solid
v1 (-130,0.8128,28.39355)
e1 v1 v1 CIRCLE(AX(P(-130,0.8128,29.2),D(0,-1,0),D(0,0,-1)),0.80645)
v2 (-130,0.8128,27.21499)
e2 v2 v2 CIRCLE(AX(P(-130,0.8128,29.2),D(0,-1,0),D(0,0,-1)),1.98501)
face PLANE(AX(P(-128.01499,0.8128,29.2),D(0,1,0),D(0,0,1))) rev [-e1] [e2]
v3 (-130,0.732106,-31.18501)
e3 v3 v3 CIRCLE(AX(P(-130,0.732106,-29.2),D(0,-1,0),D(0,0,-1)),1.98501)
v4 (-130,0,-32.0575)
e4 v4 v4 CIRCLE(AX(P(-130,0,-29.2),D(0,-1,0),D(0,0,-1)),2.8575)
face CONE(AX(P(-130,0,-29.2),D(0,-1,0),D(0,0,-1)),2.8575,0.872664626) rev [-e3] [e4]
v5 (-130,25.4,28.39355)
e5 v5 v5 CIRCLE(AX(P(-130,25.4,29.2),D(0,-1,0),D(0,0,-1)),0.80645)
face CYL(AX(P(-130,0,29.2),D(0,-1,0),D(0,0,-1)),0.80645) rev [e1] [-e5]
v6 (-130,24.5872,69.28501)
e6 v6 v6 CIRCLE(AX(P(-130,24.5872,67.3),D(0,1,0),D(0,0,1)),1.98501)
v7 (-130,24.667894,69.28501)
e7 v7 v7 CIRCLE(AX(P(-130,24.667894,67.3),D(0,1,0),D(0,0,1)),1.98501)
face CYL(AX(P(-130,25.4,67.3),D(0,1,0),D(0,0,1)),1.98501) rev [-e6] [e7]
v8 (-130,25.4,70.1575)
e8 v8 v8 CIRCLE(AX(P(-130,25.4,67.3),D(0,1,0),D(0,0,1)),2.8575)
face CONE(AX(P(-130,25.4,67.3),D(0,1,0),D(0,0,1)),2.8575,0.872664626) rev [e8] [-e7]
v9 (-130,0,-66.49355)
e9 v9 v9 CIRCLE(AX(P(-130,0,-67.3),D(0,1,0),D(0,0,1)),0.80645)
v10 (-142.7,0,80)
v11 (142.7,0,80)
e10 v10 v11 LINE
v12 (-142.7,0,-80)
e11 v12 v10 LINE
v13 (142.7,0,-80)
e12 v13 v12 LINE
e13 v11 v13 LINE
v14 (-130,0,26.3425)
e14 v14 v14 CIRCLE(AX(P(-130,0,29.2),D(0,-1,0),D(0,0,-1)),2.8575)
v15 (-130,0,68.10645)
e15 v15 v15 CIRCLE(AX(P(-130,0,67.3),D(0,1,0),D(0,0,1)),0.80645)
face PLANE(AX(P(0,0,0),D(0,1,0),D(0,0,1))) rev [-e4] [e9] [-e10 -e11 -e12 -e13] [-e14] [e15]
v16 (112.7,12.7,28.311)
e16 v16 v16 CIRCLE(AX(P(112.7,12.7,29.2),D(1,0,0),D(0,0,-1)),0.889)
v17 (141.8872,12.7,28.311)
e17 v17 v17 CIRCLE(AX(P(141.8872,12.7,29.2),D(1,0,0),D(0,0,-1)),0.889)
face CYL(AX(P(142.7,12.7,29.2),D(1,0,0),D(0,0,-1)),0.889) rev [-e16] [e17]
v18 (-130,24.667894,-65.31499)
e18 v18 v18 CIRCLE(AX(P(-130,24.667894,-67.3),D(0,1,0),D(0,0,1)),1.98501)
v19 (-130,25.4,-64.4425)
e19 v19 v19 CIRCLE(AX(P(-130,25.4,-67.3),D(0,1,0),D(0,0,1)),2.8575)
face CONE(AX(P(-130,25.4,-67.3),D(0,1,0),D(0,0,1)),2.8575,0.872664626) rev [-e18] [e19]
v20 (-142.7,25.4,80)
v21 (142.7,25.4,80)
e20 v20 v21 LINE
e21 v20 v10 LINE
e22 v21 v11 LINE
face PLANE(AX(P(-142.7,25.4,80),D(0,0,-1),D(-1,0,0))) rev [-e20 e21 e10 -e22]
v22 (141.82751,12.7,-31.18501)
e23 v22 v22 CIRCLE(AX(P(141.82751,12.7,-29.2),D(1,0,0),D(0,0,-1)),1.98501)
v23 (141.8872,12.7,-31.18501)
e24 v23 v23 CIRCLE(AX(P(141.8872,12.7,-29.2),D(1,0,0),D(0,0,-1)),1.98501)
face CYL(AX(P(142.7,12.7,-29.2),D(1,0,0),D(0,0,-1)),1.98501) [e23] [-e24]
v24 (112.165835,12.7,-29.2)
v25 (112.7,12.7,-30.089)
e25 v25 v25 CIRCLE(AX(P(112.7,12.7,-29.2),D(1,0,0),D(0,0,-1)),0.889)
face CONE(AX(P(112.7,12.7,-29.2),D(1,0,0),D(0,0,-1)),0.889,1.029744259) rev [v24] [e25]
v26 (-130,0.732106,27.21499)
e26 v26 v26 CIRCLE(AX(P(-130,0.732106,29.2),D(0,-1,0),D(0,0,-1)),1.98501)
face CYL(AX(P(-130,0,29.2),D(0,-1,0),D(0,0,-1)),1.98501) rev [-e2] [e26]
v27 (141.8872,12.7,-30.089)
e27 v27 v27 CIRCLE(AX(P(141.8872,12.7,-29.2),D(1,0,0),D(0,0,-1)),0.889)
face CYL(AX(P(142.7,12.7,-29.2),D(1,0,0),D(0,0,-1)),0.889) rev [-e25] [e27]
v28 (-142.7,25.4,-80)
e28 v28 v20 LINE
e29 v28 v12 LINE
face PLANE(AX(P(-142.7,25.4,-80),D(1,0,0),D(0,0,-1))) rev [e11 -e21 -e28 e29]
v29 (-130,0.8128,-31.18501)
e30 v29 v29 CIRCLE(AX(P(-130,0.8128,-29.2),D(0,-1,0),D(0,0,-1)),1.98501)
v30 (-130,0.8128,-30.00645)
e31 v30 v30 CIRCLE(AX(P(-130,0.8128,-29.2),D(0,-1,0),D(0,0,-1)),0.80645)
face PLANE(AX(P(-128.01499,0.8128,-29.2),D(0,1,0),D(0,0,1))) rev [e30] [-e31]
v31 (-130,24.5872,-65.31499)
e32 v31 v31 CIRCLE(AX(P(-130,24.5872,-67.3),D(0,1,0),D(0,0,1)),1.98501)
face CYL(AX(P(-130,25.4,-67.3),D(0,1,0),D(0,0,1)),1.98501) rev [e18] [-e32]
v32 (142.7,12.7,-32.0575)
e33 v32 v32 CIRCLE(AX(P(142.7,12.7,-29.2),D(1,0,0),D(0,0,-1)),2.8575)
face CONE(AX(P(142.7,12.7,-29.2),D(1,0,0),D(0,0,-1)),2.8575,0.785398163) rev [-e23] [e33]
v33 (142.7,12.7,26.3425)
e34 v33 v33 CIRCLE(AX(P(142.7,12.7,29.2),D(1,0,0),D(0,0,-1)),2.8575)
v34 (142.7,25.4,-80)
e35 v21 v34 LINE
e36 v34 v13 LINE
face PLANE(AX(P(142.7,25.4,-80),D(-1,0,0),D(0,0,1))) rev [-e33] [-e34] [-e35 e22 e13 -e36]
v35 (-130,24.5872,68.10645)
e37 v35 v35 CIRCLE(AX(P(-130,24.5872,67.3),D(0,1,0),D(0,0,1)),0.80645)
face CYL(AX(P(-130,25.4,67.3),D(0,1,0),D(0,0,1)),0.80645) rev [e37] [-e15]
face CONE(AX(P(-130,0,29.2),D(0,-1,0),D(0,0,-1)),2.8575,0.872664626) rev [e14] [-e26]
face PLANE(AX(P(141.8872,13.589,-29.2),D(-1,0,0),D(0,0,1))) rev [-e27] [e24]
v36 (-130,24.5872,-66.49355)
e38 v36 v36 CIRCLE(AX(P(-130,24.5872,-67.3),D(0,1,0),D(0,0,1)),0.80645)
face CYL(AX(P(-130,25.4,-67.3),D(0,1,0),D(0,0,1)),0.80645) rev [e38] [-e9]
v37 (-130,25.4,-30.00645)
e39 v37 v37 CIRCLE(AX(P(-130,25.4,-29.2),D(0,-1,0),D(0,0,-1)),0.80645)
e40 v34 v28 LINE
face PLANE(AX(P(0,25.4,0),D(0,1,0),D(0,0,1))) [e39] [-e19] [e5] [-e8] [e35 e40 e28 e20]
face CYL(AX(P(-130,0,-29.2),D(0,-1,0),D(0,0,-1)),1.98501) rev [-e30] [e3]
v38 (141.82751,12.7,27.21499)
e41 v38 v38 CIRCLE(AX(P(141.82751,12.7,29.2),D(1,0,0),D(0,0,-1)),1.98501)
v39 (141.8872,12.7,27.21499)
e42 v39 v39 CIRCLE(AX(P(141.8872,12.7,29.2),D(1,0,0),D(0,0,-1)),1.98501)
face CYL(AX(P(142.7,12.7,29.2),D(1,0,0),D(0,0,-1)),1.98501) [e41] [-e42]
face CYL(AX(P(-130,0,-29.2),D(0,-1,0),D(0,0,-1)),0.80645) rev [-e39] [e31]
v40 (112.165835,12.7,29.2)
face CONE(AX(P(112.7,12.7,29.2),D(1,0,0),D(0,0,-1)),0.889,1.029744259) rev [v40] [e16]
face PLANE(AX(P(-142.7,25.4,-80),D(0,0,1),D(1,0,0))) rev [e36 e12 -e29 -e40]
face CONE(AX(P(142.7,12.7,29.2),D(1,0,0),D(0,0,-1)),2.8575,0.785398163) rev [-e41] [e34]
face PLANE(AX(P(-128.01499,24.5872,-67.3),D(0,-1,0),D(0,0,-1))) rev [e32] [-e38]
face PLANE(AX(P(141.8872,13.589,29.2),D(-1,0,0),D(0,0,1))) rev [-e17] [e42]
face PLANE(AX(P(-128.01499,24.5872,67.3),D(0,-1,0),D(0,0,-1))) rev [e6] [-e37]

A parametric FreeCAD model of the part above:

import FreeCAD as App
import Part
import Sketcher
Q = App.Units.Quantity

doc = App.newDocument("Part")
body = doc.addObject("PartDesign::Body", "Body")

# Sketch on XZ plane
sketch1 = body.newObject("Sketcher::SketchObject", "Sketch")
sketch1.AttachmentSupport = (doc.getObject("XZ_Plane"), [""])
sketch1.MapMode = "FlatFace"
sketch1.addGeometry([
    Part.LineSegment(App.Vector(-143, -80, 0), App.Vector(-143, 80, 0)),
    Part.LineSegment(App.Vector(-143, 80, 0), App.Vector(143, 80, 0)),
    Part.LineSegment(App.Vector(143, 80, 0), App.Vector(143, -80, 0)),
    Part.LineSegment(App.Vector(143, -80, 0), App.Vector(-143, -80, 0)),
], False)
sketch1.addConstraint([
    Sketcher.Constraint("Coincident", 0, 2, 1, 1),
    Sketcher.Constraint("Coincident", 1, 2, 2, 1),
    Sketcher.Constraint("Coincident", 2, 2, 3, 1),
    Sketcher.Constraint("Coincident", 3, 2, 0, 1),
    Sketcher.Constraint("Vertical", 0),
    Sketcher.Constraint("Horizontal", 1),
    Sketcher.Constraint("Vertical", 2),
    Sketcher.Constraint("Horizontal", 3),
    Sketcher.Constraint("Symmetric", 0, 2, 2, 2, -1, 1),
    Sketcher.Constraint("DistanceY", 0, 1, 0, 2, 160.0),
    Sketcher.Constraint("DistanceX", 1, 1, 1, 2, 285.4),
])
pad1 = body.newObject("PartDesign::Pad", "Pad")
pad1.Profile = sketch1
pad1.Length = 25.4
pad1.Reversed = True

# Sketch on XZ plane
sketch2 = body.newObject("Sketcher::SketchObject", "Sketch001")
sketch2.AttachmentSupport = (doc.getObject("XZ_Plane"), [""])
sketch2.MapMode = "FlatFace"
sketch2.AttachmentOffset = App.Placement(App.Vector(0, 0, -12.7), App.Rotation())
sketch2.addGeometry([
    Part.LineSegment(App.Vector(112.17, 29.2, 0), App.Vector(142.7, 29.2, 0)),  # 0
    Part.LineSegment(App.Vector(142.7, 29.2, 0), App.Vector(142.7, 26.34, 0)),  # 1
    Part.LineSegment(App.Vector(142.7, 26.34, 0), App.Vector(141.83, 27.21, 0)),  # 2
    Part.LineSegment(App.Vector(141.83, 27.21, 0), App.Vector(141.89, 27.21, 0)),  # 3
    Part.LineSegment(App.Vector(141.89, 27.21, 0), App.Vector(141.89, 28.31, 0)),  # 4
    Part.LineSegment(App.Vector(141.89, 28.31, 0), App.Vector(112.7, 28.31, 0)),  # 5
    Part.LineSegment(App.Vector(112.7, 28.31, 0), App.Vector(112.17, 29.2, 0)),  # 6
], False)
sketch2.addGeometry(Part.LineSegment(App.Vector(142.7, 29.2, 0), App.Vector(112.17, 29.2, 0)), True)  # axis
sketch2.addConstraint([
    Sketcher.Constraint("Coincident", 0, 2, 1, 1),
    Sketcher.Constraint("Coincident", 1, 2, 2, 1),
    Sketcher.Constraint("Coincident", 2, 2, 3, 1),
    Sketcher.Constraint("Coincident", 3, 2, 4, 1),
    Sketcher.Constraint("Coincident", 4, 2, 5, 1),
    Sketcher.Constraint("Coincident", 5, 2, 6, 1),
    Sketcher.Constraint("Coincident", 6, 2, 0, 1),
    Sketcher.Constraint("Horizontal", 0),
    Sketcher.Constraint("Vertical", 1),
    Sketcher.Constraint("Horizontal", 3),
    Sketcher.Constraint("Vertical", 4),
    Sketcher.Constraint("Horizontal", 5),
    Sketcher.Constraint("Horizontal", 7),
    Sketcher.Constraint("Coincident", 7, 1, 0, 2),
    Sketcher.Constraint("Equal", 0, 7),
    Sketcher.Constraint("Angle", 2, Q("135 deg")),
    Sketcher.Constraint("Angle", 6, Q("121 deg")),
    Sketcher.Constraint("DistanceX", 5, 2, 0, 2, 30.0),
    Sketcher.Constraint("DistanceX", -1, 1, 0, 2, 142.7),
    Sketcher.Constraint("DistanceY", -1, 1, 0, 2, 29.2),
    Sketcher.Constraint("DistanceX", 5, 2, 5, 1, 29.1872),
    Sketcher.Constraint("DistanceY", 1, 2, 1, 1, 2.8575),
    Sketcher.Constraint("DistanceY", -1, 1, 4, 2, 28.311),
    Sketcher.Constraint("DistanceX", 3, 1, 3, 2, 0.05969),
])
groove = body.newObject("PartDesign::Groove", "Groove")
groove.Profile = sketch2
groove.ReferenceAxis = (sketch2, ["Axis0"])
groove.Angle = 360
doc.recompute()

linearpattern = body.newObject("PartDesign::LinearPattern", "LinearPattern")
linearpattern.Originals = [groove]
linearpattern.Direction = (doc.getObject("Z_Axis"), [""])
linearpattern.Mode = "offset"
linearpattern.Offset = 58.4
linearpattern.Occurrences = 2
linearpattern.Reversed = True
body.Tip = linearpattern

# Sketch on YZ plane
sketch3 = body.newObject("Sketcher::SketchObject", "Sketch002")
sketch3.AttachmentSupport = (doc.getObject("YZ_Plane"), [""])
sketch3.MapMode = "FlatFace"
sketch3.AttachmentOffset = App.Placement(App.Vector(0, 0, -130), App.Rotation())
sketch3.addGeometry([
    Part.LineSegment(App.Vector(0, 67.3, 0), App.Vector(25.4, 67.3, 0)),  # 0
    Part.LineSegment(App.Vector(25.4, 67.3, 0), App.Vector(25.4, 70.16, 0)),  # 1
    Part.LineSegment(App.Vector(25.4, 70.16, 0), App.Vector(24.67, 69.29, 0)),  # 2
    Part.LineSegment(App.Vector(24.67, 69.29, 0), App.Vector(24.59, 69.29, 0)),  # 3
    Part.LineSegment(App.Vector(24.59, 69.29, 0), App.Vector(24.59, 68.11, 0)),  # 4
    Part.LineSegment(App.Vector(24.59, 68.11, 0), App.Vector(0, 68.11, 0)),  # 5
    Part.LineSegment(App.Vector(0, 68.11, 0), App.Vector(0, 67.3, 0)),  # 6
], False)
sketch3.addGeometry(Part.LineSegment(App.Vector(25.4, 67.3, 0), App.Vector(0, 67.3, 0)), True)  # axis
sketch3.addConstraint([
    Sketcher.Constraint("Coincident", 0, 2, 1, 1),
    Sketcher.Constraint("Coincident", 1, 2, 2, 1),
    Sketcher.Constraint("Coincident", 2, 2, 3, 1),
    Sketcher.Constraint("Coincident", 3, 2, 4, 1),
    Sketcher.Constraint("Coincident", 4, 2, 5, 1),
    Sketcher.Constraint("Coincident", 5, 2, 6, 1),
    Sketcher.Constraint("Coincident", 6, 2, 0, 1),
    Sketcher.Constraint("Horizontal", 0),
    Sketcher.Constraint("Vertical", 1),
    Sketcher.Constraint("Horizontal", 3),
    Sketcher.Constraint("Vertical", 4),
    Sketcher.Constraint("Horizontal", 5),
    Sketcher.Constraint("Vertical", 6),
    Sketcher.Constraint("Horizontal", 7),
    Sketcher.Constraint("Coincident", 7, 1, 0, 2),
    Sketcher.Constraint("PointOnObject", 5, 2, -2),
    Sketcher.Constraint("PointOnObject", 7, 2, -2),
    Sketcher.Constraint("Angle", 2, Q("-130 deg")),
    Sketcher.Constraint("DistanceX", 0, 1, 0, 2, 25.4),
    Sketcher.Constraint("DistanceY", -1, 1, 0, 2, 67.3),
    Sketcher.Constraint("DistanceX", 5, 2, 5, 1, 24.5872),
    Sketcher.Constraint("DistanceY", 1, 1, 1, 2, 2.8575),
    Sketcher.Constraint("DistanceY", 4, 2, 4, 1, 1.17856),
    Sketcher.Constraint("DistanceY", 6, 2, 6, 1, 0.80645),
])
groove2 = body.newObject("PartDesign::Groove", "Groove001")
groove2.Profile = sketch3
groove2.ReferenceAxis = (sketch3, ["Axis0"])
groove2.Angle = 360
doc.recompute()

linearpattern2 = body.newObject("PartDesign::LinearPattern", "LinearPattern001")
linearpattern2.Originals = [groove2]
linearpattern2.Direction = (doc.getObject("Z_Axis"), [""])
linearpattern2.Mode = "offset"
linearpattern2.Offset = 134.6
linearpattern2.Occurrences = 2
linearpattern2.Reversed = True
body.Tip = linearpattern2

# Sketch on YZ plane
sketch4 = body.newObject("Sketcher::SketchObject", "Sketch003")
sketch4.AttachmentSupport = (doc.getObject("YZ_Plane"), [""])
sketch4.MapMode = "FlatFace"
sketch4.AttachmentOffset = App.Placement(App.Vector(0, 0, -130), App.Rotation())
sketch4.addGeometry([
    Part.LineSegment(App.Vector(25.4, -29.2, 0), App.Vector(0, -29.2, 0)),  # 0
    Part.LineSegment(App.Vector(0, -29.2, 0), App.Vector(0, -32.06, 0)),  # 1
    Part.LineSegment(App.Vector(0, -32.06, 0), App.Vector(0.73, -31.19, 0)),  # 2
    Part.LineSegment(App.Vector(0.73, -31.19, 0), App.Vector(0.81, -31.19, 0)),  # 3
    Part.LineSegment(App.Vector(0.81, -31.19, 0), App.Vector(0.81, -30.01, 0)),  # 4
    Part.LineSegment(App.Vector(0.81, -30.01, 0), App.Vector(25.4, -30.01, 0)),  # 5
    Part.LineSegment(App.Vector(25.4, -30.01, 0), App.Vector(25.4, -29.2, 0)),  # 6
], False)
sketch4.addGeometry(Part.LineSegment(App.Vector(0, -29.2, 0), App.Vector(25.4, -29.2, 0)), True)  # axis
sketch4.addConstraint([
    Sketcher.Constraint("Coincident", 0, 2, 1, 1),
    Sketcher.Constraint("Coincident", 1, 2, 2, 1),
    Sketcher.Constraint("Coincident", 2, 2, 3, 1),
    Sketcher.Constraint("Coincident", 3, 2, 4, 1),
    Sketcher.Constraint("Coincident", 4, 2, 5, 1),
    Sketcher.Constraint("Coincident", 5, 2, 6, 1),
    Sketcher.Constraint("Coincident", 6, 2, 0, 1),
    Sketcher.Constraint("Horizontal", 0),
    Sketcher.Constraint("Vertical", 1),
    Sketcher.Constraint("Horizontal", 3),
    Sketcher.Constraint("Vertical", 4),
    Sketcher.Constraint("Horizontal", 5),
    Sketcher.Constraint("Vertical", 6),
    Sketcher.Constraint("Horizontal", 7),
    Sketcher.Constraint("Coincident", 7, 1, 0, 2),
    Sketcher.Constraint("PointOnObject", 0, 2, -2),
    Sketcher.Constraint("Vertical", 5, 2, 7, 2),
    Sketcher.Constraint("Angle", 2, Q("50 deg")),
    Sketcher.Constraint("DistanceX", 0, 2, 0, 1, 25.4),
    Sketcher.Constraint("DistanceY", 0, 2, -1, 1, 29.2),
    Sketcher.Constraint("DistanceX", 5, 1, 5, 2, 24.5872),
    Sketcher.Constraint("DistanceY", 1, 2, 1, 1, 2.8575),
    Sketcher.Constraint("DistanceY", 4, 1, 4, 2, 1.17856),
    Sketcher.Constraint("DistanceY", 6, 1, 6, 2, 0.80645),
])
groove3 = body.newObject("PartDesign::Groove", "Groove002")
groove3.Profile = sketch4
groove3.ReferenceAxis = (sketch4, ["Axis0"])
groove3.Angle = 360
doc.recompute()

linearpattern3 = body.newObject("PartDesign::LinearPattern", "LinearPattern002")
linearpattern3.Originals = [groove3]
linearpattern3.Direction = (doc.getObject("Z_Axis"), [""])
linearpattern3.Mode = "offset"
linearpattern3.Offset = 58.4
linearpattern3.Occurrences = 2
body.Tip = linearpattern3

doc.recompute()
